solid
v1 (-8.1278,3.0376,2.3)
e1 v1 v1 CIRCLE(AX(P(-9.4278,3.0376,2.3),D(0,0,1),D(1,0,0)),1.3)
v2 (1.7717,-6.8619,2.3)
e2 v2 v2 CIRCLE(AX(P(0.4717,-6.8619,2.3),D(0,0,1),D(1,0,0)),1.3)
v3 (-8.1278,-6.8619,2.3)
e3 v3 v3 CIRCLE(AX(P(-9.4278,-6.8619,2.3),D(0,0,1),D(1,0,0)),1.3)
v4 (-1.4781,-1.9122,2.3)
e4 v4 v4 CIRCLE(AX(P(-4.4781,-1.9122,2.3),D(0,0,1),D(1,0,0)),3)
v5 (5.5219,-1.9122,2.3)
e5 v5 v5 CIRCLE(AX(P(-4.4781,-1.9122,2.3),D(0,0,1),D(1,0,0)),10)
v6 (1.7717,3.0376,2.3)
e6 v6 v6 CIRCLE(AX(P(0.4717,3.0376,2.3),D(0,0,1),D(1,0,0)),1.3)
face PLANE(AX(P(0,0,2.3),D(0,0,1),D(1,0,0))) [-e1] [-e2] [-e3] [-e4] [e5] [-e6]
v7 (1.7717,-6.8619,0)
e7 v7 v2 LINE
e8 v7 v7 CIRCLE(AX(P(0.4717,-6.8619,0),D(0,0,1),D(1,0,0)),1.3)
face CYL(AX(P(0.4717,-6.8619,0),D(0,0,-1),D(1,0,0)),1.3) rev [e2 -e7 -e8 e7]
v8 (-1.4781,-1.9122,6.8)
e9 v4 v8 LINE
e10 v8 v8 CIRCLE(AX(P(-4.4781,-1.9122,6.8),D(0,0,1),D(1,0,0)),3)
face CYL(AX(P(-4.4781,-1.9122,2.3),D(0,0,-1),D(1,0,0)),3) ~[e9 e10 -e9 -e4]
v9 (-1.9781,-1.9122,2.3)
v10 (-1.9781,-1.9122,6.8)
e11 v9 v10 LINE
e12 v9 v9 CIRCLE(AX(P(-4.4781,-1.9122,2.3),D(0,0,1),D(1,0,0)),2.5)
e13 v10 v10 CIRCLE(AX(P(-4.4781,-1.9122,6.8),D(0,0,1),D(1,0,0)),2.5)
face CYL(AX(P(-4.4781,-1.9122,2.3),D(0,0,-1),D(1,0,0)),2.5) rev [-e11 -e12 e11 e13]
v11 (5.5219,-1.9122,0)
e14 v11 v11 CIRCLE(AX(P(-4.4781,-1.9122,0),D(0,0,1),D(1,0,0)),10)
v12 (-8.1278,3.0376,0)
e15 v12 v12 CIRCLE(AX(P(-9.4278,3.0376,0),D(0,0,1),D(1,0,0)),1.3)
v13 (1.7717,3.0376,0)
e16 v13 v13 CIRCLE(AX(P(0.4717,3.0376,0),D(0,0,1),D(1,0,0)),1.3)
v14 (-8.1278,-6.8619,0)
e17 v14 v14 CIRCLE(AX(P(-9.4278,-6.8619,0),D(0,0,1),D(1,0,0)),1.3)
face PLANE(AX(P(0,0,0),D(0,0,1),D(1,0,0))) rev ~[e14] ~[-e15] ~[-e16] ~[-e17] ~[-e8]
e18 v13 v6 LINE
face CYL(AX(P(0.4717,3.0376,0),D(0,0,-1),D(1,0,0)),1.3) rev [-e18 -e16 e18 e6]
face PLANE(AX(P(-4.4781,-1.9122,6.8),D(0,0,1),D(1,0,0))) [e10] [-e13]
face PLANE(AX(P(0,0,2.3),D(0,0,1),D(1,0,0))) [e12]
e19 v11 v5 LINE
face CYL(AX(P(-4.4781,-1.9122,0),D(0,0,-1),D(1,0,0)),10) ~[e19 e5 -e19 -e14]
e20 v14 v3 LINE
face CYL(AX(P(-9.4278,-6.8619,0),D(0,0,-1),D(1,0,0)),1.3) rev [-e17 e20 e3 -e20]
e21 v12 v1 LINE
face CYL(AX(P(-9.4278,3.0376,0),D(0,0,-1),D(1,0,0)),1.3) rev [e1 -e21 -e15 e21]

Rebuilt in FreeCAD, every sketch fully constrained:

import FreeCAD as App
import Part
import Sketcher
from FreeCAD import Vector

doc = App.newDocument("Part")
body = doc.addObject("PartDesign::Body", "Body")

sketch1 = doc.addObject("Sketcher::SketchObject", "Sketch")
body.addObject(sketch1)
sketch1.AttachmentSupport = (doc.XY_Plane, [""])
sketch1.MapMode = "FlatFace"
sketch1.addGeometry(Part.Circle(Vector(-4.5, -1.9, 0), Vector(0, 0, 1), 10), False)
sketch1.addGeometry(Part.Circle(Vector(-9.4, -6.9, 0), Vector(0, 0, 1), 1.3), False)
sketch1.addGeometry(Part.Circle(Vector(0.5, -6.9, 0), Vector(0, 0, 1), 1.3), False)
sketch1.addGeometry(Part.Circle(Vector(-9.4, 3, 0), Vector(0, 0, 1), 1.3), False)
sketch1.addGeometry(Part.Circle(Vector(0.5, 3, 0), Vector(0, 0, 1), 1.3), False)
sketch1.addConstraint(Sketcher.Constraint("Equal", 1, 2))
sketch1.addConstraint(Sketcher.Constraint("Equal", 2, 3))
sketch1.addConstraint(Sketcher.Constraint("Equal", 3, 4))
sketch1.addConstraint(Sketcher.Constraint("Horizontal", 1, 3, 2, 3))
sketch1.addConstraint(Sketcher.Constraint("Horizontal", 3, 3, 4, 3))
sketch1.addConstraint(Sketcher.Constraint("Vertical", 1, 3, 3, 3))
sketch1.addConstraint(Sketcher.Constraint("Vertical", 2, 3, 4, 3))
sketch1.addConstraint(Sketcher.Constraint("Diameter", 0, 20.0))
sketch1.addConstraint(Sketcher.Constraint("Diameter", 1, 2.6))
sketch1.addConstraint(Sketcher.Constraint("DistanceX", 0, 3, -1, 1, 4.478))
sketch1.addConstraint(Sketcher.Constraint("DistanceY", 1, 3, -1, 1, 6.862))
sketch1.addConstraint(Sketcher.Constraint("DistanceY", 0, 3, -1, 1, 1.9122))
sketch1.addConstraint(Sketcher.Constraint("DistanceX", 1, 3, -1, 1, 9.4278))
sketch1.addConstraint(Sketcher.Constraint("DistanceX", -1, 1, 2, 3, 0.4717))
sketch1.addConstraint(Sketcher.Constraint("DistanceY", -1, 1, 3, 3, 3.0376))
pad1 = doc.addObject("PartDesign::Pad", "Pad")
body.addObject(pad1)
pad1.Profile = sketch1
pad1.Length = 2.3

sketch2 = doc.addObject("Sketcher::SketchObject", "Sketch001")
body.addObject(sketch2)
sketch2.AttachmentSupport = (doc.XY_Plane, [""])
sketch2.MapMode = "FlatFace"
sketch2.AttachmentOffset = App.Placement(Vector(0, 0, 2.3), App.Rotation())
sketch2.addGeometry(Part.Circle(Vector(-4.5, -1.9, 0), Vector(0, 0, 1), 3), False)
sketch2.addGeometry(Part.Circle(Vector(-4.5, -1.9, 0), Vector(0, 0, 1), 2.5), False)
sketch2.addConstraint(Sketcher.Constraint("Coincident", 1, 3, 0, 3))
sketch2.addConstraint(Sketcher.Constraint("Diameter", 0, 6.0))
sketch2.addConstraint(Sketcher.Constraint("Diameter", 1, 5.0))
sketch2.addConstraint(Sketcher.Constraint("DistanceX", 0, 3, -1, 1, 4.478))
sketch2.addConstraint(Sketcher.Constraint("DistanceY", 0, 3, -1, 1, 1.9122))
pad2 = doc.addObject("PartDesign::Pad", "Pad001")
body.addObject(pad2)
pad2.Profile = sketch2
pad2.Length = 4.5

doc.recompute()
